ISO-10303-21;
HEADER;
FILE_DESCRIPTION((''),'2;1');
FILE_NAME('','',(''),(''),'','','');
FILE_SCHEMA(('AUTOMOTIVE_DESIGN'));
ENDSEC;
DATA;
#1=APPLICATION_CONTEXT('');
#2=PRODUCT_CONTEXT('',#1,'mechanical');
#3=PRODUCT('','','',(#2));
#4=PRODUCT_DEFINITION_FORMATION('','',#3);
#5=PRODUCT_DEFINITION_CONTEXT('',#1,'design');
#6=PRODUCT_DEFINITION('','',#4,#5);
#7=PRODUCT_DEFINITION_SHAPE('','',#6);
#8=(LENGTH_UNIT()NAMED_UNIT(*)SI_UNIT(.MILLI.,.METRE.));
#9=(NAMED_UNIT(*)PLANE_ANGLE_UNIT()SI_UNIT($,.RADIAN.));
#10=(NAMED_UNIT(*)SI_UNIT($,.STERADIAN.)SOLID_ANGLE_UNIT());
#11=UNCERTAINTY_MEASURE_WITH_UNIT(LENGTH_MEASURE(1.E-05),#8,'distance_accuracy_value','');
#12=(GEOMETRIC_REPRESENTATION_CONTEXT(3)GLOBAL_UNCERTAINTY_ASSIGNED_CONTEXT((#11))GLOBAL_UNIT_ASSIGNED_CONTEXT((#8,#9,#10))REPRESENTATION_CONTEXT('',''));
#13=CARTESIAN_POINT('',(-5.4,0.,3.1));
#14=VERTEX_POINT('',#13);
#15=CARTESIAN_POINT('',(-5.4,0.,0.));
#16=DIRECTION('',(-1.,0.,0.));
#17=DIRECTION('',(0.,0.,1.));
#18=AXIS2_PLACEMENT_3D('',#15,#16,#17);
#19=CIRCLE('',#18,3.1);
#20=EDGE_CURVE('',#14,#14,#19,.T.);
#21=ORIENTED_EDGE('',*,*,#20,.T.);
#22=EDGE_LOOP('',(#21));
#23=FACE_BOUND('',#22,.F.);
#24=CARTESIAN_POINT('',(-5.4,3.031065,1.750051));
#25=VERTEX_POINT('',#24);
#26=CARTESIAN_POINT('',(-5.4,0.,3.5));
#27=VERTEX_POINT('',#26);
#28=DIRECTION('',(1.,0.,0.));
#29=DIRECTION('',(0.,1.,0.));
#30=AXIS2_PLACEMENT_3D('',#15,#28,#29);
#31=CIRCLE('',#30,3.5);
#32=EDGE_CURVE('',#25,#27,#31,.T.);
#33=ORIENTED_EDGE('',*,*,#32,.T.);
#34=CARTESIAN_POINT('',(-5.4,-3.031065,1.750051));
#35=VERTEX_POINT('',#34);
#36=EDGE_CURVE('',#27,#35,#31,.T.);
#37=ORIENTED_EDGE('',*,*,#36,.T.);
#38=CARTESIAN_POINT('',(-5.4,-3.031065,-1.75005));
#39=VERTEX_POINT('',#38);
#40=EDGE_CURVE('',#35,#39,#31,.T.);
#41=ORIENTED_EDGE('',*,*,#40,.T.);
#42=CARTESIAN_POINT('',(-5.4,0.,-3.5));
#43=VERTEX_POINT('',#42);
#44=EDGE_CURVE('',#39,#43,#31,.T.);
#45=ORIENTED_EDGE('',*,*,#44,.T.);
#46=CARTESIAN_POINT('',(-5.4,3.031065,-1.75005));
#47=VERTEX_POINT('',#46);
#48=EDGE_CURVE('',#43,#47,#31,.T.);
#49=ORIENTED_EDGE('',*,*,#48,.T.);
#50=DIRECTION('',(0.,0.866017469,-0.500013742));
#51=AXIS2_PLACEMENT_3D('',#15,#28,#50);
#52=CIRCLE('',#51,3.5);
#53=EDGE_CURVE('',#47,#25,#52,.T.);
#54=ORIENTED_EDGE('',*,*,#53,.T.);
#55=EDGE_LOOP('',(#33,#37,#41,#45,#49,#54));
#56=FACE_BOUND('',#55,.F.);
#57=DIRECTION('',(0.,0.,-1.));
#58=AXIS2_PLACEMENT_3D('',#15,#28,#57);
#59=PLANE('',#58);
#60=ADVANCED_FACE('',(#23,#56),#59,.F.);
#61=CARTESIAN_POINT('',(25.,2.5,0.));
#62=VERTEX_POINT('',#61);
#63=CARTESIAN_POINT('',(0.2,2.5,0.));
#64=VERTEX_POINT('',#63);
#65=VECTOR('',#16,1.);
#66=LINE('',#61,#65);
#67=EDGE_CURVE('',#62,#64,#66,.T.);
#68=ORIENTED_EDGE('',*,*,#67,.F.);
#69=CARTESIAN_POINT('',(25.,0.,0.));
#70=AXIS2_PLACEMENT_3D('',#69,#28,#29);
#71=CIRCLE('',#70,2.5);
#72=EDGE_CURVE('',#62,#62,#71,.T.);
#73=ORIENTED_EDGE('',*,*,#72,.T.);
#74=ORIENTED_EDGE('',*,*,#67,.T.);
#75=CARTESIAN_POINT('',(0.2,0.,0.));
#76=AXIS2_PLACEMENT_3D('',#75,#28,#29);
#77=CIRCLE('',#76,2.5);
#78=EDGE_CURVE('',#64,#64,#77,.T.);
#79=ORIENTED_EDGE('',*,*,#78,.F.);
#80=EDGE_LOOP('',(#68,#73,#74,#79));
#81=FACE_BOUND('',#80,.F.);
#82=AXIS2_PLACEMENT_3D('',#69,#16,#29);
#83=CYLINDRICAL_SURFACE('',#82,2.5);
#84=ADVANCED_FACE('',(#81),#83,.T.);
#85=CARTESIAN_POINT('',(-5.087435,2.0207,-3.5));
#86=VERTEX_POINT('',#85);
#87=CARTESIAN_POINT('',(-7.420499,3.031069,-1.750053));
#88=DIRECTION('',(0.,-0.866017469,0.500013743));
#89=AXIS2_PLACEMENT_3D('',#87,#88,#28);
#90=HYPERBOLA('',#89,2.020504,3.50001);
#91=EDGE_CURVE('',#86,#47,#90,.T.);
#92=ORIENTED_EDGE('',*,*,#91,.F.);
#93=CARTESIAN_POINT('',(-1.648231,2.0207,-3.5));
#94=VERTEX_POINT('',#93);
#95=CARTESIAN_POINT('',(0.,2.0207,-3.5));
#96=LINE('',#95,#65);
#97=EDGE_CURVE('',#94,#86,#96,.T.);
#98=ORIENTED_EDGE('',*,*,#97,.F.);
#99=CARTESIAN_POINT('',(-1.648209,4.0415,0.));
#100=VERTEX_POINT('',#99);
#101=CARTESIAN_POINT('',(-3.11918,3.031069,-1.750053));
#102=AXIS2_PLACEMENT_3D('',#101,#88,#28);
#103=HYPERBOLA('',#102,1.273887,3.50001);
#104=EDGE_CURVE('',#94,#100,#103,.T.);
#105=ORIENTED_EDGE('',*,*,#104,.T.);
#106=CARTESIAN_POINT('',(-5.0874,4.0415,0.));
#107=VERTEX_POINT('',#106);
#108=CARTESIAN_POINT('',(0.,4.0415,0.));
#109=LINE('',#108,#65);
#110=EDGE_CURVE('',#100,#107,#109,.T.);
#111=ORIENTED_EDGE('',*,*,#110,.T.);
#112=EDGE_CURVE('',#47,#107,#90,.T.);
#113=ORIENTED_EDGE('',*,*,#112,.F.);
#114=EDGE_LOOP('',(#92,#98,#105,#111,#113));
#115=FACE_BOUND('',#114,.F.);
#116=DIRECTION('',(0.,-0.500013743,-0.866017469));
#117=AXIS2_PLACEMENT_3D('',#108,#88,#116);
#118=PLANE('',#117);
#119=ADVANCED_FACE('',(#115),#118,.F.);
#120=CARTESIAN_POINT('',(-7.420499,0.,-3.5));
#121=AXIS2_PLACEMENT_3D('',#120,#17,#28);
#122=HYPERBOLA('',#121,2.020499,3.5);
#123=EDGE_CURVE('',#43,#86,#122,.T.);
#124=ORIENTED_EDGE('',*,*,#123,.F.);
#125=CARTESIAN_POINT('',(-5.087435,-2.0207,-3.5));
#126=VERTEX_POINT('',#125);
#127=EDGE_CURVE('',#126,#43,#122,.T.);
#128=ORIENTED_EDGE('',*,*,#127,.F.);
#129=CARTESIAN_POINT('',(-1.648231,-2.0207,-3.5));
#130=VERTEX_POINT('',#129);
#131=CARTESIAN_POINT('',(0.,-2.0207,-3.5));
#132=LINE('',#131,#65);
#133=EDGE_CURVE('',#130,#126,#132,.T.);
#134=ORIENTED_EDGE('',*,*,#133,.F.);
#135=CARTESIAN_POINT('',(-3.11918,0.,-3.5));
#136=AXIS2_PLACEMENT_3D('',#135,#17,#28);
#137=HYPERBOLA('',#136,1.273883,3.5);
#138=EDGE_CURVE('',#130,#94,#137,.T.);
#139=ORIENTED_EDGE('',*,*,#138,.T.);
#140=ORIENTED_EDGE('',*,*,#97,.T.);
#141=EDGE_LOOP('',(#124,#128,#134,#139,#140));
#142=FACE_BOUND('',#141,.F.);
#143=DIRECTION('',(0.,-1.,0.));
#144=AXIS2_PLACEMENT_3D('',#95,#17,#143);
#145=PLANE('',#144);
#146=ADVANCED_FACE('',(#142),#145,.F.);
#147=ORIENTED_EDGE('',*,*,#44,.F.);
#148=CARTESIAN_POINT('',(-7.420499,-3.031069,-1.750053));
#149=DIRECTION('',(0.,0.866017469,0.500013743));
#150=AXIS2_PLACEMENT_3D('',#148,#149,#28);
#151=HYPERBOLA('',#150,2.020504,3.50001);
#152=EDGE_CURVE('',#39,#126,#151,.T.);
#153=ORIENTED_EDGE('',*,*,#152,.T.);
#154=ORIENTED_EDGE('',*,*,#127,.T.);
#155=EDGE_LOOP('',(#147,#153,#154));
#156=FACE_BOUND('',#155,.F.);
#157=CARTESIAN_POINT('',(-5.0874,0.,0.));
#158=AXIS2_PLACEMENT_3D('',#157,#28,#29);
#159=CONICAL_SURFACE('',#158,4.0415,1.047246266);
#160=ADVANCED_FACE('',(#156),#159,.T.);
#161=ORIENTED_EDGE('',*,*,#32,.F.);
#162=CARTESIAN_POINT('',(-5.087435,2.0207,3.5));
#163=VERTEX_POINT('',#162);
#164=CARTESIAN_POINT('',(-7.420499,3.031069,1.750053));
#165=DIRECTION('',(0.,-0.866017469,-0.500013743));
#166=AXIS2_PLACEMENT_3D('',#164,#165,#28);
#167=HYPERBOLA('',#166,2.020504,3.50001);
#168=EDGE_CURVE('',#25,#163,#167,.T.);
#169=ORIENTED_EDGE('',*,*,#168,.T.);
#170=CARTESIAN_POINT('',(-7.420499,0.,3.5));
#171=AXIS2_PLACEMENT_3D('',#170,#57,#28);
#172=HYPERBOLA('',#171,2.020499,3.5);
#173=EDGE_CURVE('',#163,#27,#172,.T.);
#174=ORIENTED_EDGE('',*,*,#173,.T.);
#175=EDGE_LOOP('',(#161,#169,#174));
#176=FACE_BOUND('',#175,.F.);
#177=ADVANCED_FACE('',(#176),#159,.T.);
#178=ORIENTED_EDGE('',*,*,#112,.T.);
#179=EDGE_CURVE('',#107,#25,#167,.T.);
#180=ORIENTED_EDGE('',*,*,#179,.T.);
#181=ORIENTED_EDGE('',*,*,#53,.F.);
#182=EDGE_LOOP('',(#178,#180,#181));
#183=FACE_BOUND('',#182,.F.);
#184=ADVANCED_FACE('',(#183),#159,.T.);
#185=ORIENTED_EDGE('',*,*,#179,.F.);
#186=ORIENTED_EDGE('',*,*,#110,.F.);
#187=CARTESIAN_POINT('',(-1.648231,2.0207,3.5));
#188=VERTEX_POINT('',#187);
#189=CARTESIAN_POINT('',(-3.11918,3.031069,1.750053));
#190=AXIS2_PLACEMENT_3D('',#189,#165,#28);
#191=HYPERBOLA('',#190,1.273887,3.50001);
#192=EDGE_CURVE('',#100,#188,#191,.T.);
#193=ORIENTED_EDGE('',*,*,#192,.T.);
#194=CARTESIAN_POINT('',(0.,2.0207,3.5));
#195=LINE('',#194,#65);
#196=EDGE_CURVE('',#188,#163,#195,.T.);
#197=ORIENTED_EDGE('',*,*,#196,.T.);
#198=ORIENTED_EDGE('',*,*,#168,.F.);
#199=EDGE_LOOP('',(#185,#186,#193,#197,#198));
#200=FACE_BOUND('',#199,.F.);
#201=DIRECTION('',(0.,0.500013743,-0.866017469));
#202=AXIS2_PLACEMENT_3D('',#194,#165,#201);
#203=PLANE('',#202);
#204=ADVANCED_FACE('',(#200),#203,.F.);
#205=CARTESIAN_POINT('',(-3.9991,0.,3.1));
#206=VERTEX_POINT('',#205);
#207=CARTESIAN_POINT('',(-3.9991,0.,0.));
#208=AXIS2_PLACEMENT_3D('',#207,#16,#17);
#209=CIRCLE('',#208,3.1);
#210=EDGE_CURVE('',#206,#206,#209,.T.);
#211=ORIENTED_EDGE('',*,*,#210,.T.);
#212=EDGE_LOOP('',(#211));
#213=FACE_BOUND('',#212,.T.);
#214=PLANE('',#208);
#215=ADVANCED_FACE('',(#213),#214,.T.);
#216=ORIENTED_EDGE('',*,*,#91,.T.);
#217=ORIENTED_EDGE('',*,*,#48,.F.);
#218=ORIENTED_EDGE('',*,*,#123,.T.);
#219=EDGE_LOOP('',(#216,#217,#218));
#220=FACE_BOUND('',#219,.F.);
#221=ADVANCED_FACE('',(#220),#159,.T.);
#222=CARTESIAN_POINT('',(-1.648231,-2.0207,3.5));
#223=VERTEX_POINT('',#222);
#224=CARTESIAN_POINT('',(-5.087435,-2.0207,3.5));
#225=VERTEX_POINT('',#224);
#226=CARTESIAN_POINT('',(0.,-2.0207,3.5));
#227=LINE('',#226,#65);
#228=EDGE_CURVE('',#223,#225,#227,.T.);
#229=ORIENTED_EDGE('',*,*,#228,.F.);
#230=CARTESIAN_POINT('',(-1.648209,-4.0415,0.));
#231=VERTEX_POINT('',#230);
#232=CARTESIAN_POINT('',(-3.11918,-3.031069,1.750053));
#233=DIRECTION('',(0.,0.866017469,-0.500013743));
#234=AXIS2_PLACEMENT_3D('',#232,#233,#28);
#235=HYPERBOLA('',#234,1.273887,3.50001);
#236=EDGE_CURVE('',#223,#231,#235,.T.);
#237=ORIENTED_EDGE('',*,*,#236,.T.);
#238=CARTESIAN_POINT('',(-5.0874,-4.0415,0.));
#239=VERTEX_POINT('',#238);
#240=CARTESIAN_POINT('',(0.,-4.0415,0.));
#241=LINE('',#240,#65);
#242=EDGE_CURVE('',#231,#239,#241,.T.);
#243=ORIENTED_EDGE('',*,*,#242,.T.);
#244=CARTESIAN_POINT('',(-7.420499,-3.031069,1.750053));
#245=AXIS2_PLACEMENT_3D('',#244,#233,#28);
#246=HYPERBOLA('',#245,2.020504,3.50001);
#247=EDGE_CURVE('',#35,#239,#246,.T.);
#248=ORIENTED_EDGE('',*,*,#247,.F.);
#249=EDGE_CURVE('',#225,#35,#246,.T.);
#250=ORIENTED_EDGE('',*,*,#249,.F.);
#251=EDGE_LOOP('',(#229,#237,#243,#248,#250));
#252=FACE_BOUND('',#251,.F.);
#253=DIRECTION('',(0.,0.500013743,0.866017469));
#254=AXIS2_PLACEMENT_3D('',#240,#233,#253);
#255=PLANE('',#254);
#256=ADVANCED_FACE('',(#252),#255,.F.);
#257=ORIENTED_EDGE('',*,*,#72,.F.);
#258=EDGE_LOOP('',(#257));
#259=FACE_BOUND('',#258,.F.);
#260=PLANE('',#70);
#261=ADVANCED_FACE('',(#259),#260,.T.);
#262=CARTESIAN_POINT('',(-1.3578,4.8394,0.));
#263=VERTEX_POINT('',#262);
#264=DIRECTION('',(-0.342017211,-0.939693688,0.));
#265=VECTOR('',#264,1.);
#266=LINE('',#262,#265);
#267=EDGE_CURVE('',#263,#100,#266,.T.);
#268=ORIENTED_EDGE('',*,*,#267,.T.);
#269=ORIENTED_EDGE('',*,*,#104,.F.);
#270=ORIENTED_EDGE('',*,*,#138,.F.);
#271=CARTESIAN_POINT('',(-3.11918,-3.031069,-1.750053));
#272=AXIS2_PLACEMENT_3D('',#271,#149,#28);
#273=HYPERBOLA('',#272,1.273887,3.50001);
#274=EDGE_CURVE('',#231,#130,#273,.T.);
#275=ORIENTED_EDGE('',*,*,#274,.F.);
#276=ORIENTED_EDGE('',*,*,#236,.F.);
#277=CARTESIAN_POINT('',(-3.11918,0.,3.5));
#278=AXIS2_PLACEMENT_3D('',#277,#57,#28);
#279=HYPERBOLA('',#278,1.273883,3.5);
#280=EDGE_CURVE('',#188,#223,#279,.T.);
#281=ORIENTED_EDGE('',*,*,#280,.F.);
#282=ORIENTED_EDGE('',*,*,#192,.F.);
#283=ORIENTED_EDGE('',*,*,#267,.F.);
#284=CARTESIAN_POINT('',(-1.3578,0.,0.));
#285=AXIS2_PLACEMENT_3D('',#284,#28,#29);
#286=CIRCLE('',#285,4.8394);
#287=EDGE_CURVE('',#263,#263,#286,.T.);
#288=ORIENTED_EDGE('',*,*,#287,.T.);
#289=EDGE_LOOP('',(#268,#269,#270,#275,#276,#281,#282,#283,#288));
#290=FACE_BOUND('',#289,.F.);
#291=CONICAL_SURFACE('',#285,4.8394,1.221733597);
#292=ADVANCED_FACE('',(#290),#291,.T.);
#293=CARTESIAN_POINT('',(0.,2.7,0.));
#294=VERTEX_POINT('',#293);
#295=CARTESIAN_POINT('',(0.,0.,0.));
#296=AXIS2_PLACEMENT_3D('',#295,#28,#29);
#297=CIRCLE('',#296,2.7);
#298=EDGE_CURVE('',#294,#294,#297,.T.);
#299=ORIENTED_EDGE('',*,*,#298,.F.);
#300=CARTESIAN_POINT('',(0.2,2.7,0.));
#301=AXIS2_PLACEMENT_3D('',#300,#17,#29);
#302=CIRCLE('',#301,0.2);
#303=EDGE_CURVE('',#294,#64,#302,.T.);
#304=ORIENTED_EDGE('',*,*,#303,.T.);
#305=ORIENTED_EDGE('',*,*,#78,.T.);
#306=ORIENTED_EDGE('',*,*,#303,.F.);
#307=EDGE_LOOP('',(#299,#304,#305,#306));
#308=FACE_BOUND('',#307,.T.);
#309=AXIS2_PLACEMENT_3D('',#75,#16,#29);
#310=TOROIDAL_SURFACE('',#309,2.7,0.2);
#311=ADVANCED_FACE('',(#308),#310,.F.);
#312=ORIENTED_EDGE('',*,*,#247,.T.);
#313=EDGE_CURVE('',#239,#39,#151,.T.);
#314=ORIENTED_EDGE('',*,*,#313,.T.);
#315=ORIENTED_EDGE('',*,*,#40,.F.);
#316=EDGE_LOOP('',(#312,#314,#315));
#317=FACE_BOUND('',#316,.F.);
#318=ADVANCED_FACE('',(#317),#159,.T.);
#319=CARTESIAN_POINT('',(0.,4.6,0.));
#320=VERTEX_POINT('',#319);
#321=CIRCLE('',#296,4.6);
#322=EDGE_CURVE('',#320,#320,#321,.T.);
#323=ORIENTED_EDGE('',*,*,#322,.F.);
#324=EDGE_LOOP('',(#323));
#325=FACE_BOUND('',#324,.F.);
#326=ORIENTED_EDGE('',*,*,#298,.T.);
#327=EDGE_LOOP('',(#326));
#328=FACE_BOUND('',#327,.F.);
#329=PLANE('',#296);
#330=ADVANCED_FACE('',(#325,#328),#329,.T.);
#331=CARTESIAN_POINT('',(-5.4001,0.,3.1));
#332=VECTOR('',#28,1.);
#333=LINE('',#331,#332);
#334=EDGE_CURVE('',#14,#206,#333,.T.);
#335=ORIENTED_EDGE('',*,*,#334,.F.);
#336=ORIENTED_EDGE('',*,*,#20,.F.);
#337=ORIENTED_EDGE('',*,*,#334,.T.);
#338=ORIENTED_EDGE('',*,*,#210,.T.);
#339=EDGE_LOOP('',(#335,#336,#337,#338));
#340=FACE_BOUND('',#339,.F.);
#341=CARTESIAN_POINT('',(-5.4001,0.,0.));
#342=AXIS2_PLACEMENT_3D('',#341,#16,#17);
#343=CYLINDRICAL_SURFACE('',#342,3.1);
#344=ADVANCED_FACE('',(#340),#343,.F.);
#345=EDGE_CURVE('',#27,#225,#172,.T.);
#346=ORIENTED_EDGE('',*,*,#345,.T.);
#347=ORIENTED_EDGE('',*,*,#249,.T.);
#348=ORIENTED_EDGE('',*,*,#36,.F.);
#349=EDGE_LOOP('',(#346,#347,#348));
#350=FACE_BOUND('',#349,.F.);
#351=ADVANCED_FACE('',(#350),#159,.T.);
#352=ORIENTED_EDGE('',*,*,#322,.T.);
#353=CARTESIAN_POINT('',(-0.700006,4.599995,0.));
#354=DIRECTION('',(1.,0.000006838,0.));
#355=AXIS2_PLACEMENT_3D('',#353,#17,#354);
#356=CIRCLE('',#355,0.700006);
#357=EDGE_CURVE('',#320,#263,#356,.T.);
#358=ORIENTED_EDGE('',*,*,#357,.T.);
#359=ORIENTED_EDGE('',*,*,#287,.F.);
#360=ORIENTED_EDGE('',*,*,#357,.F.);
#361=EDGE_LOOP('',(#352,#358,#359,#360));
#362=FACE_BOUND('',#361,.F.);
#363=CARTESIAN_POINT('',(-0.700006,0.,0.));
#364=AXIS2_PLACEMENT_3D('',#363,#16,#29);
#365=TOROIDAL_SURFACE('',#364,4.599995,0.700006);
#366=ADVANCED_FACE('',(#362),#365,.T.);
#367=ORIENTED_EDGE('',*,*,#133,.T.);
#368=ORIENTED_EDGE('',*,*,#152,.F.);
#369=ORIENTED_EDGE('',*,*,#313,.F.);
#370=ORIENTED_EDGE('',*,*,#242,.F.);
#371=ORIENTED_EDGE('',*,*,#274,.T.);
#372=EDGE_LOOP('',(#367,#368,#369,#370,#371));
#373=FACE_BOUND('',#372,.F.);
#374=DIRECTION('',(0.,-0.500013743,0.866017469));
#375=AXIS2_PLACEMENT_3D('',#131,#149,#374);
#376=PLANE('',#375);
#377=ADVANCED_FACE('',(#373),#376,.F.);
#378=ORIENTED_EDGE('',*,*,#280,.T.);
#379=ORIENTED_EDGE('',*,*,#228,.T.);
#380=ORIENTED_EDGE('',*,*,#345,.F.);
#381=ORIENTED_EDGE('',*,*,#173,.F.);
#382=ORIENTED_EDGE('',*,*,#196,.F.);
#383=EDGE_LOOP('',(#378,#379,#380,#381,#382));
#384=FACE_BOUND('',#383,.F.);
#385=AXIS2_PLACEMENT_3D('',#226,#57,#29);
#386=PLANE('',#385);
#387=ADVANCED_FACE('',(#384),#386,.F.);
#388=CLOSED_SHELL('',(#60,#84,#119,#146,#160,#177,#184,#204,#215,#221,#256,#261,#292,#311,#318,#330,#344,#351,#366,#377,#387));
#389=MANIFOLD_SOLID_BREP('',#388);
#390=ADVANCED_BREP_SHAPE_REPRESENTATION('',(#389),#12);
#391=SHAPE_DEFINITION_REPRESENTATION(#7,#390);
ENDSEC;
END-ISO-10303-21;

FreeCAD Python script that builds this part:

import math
import FreeCAD as App
import Part
import Sketcher

V = App.Vector
Q = App.Units.Quantity


def edges_at(feature, points):
    """Names of the edges that pass closest to the given points."""
    edges = feature.Shape.Edges
    near = lambda p: min(range(len(edges)), key=lambda i: edges[i].distToShape(Part.Vertex(*p))[0])
    return sorted({f"Edge{near(p) + 1}" for p in points})


def add_polygon(sketch, points):
    """Adds a closed chain of lines whose ends are joined by coincident constraints."""
    first, n = sketch.GeometryCount, len(points)
    for a, b in zip(points, points[1:] + points[:1]):
        sketch.addGeometry(Part.LineSegment(App.Vector(*a, 0), App.Vector(*b, 0)), False)
    for i in range(n):
        sketch.addConstraint(Sketcher.Constraint("Coincident", first + i, 2, first + (i + 1) % n, 1))

doc = App.newDocument("Part")
body = doc.addObject("PartDesign::Body", "Body")

# Sketch on XY plane
sketch1 = doc.addObject("Sketcher::SketchObject", "Sketch")
body.addObject(sketch1)
sketch1.AttachmentSupport = (doc.XY_Plane, [""])
sketch1.MapMode = "FlatFace"
sketch1.addGeometry([
    Part.ArcOfCircle(Part.Circle(V(-0.7, 4.6, 0), V(0, 0, 1), 0.7), math.radians(0), math.radians(160.001509)),  # 0
    Part.LineSegment(V(-1.3578, 4.8394, 0), V(-2.7, 1.1517, 0)),  # 1
    Part.LineSegment(V(-2.7, 1.1517, 0), V(-2.7, 0, 0)),  # 2
    Part.LineSegment(V(-2.7, 0, 0), V(25, 0, 0)),  # 3
    Part.LineSegment(V(25, 0, 0), V(25, 2.5, 0)),  # 4
    Part.LineSegment(V(25, 2.5, 0), V(0, 2.5, 0)),  # 5
    Part.LineSegment(V(0, 2.5, 0), V(0, 4.6, 0)),  # 6
], False)
sketch1.addConstraint([
    Sketcher.Constraint("Tangent", 0, 2, 1, 1),
    Sketcher.Constraint("Coincident", 1, 2, 2, 1),
    Sketcher.Constraint("Coincident", 2, 2, 3, 1),
    Sketcher.Constraint("Coincident", 3, 2, 4, 1),
    Sketcher.Constraint("Coincident", 4, 2, 5, 1),
    Sketcher.Constraint("Coincident", 5, 2, 6, 1),
    Sketcher.Constraint("Tangent", 6, 2, 0, 1),
    Sketcher.Constraint("Vertical", 2),
    Sketcher.Constraint("Horizontal", 3),
    Sketcher.Constraint("Vertical", 4),
    Sketcher.Constraint("Horizontal", 5),
    Sketcher.Constraint("Vertical", 6),
    Sketcher.Constraint("PointOnObject", 2, 2, -1),
    Sketcher.Constraint("PointOnObject", 5, 2, -2),
    Sketcher.Constraint("Radius", 0, Q("0.7 mm")),
    Sketcher.Constraint("DistanceX", 5, 2, 5, 1, Q("25 mm")),
    Sketcher.Constraint("DistanceX", 1, 2, -1, 1, Q("2.7 mm")),
    Sketcher.Constraint("Angle", 1, Q("-109.9998 deg")),
    Sketcher.Constraint("DistanceY", 4, 1, 4, 2, Q("2.5 mm")),
    Sketcher.Constraint("DistanceY", 6, 1, 6, 2, Q("2.1 mm")),
])
revolution = doc.addObject("PartDesign::Revolution", "Revolution")
body.addObject(revolution)
revolution.Profile = sketch1
revolution.ReferenceAxis = (sketch1, ["H_Axis"])
revolution.Angle = 360

# Sketch on YZ plane
sketch2 = doc.addObject("Sketcher::SketchObject", "Sketch001")
body.addObject(sketch2)
sketch2.AttachmentSupport = (doc.YZ_Plane, [""])
sketch2.MapMode = "FlatFace"
add_polygon(sketch2, [(2.0207, -3.5), (4.0415, 0), (2.0207, 3.5), (-2.0207, 3.5), (-4.0415, 0), (-2.0207, -3.5)])  # lines 0-5
sketch2.addConstraint([
    Sketcher.Constraint("Horizontal", 2),
    Sketcher.Constraint("Horizontal", 5),
    Sketcher.Constraint("Symmetric", 0, 2, 3, 2, -1, 1),
    Sketcher.Constraint("Symmetric", 1, 2, 4, 2, -1, 1),
    Sketcher.Constraint("PointOnObject", 0, 2, -1),
    Sketcher.Constraint("Parallel", 0, 3),
    Sketcher.Constraint("Vertical", 2, 2, 4, 2),
    Sketcher.Constraint("DistanceY", 4, 2, 2, 2, Q("7 mm")),
    Sketcher.Constraint("Angle", 0, Q("59.999 deg")),
    Sketcher.Constraint("DistanceX", 2, 2, 2, 1, Q("4.0414 mm")),
])
pad1 = doc.addObject("PartDesign::Pad", "Pad")
body.addObject(pad1)
pad1.Profile = sketch2
pad1.Length = 5.4
pad1.Reversed = True
doc.recompute()

fillet = doc.addObject("PartDesign::Fillet", "Fillet")
body.addObject(fillet)
fillet.Base = (pad1, edges_at(pad1, [(0, -2.5, 0)]))
fillet.Radius = 0.2

# Sketch on YZ plane
sketch3 = doc.addObject("Sketcher::SketchObject", "Sketch002")
body.addObject(sketch3)
sketch3.AttachmentSupport = (doc.YZ_Plane, [""])
sketch3.MapMode = "FlatFace"
sketch3.AttachmentOffset = App.Placement(V(0, 0, -5.4001), App.Rotation())
sketch3.addGeometry(Part.Circle(V(0, 0, 0), V(0, 0, 1), 3.1), False)
sketch3.addConstraint([
    Sketcher.Constraint("Coincident", 0, 3, -1, 1),
    Sketcher.Constraint("Diameter", 0, Q("6.2 mm")),
])
pocket1 = doc.addObject("PartDesign::Pocket", "Pocket")
body.addObject(pocket1)
pocket1.Profile = sketch3
pocket1.Length = 1.401
pocket1.Reversed = True

# Sketch on XY plane
sketch4 = doc.addObject("Sketcher::SketchObject", "Sketch003")
body.addObject(sketch4)
sketch4.AttachmentSupport = (doc.XY_Plane, [""])
sketch4.MapMode = "FlatFace"
add_polygon(sketch4, [(-5.4, 4.0415), (-5.4, 3.5), (-5.0874, 4.0415)])  # lines 0-2
sketch4.addConstraint([
    Sketcher.Constraint("Vertical", 0),
    Sketcher.Constraint("Horizontal", 2),
    Sketcher.Constraint("DistanceX", 0, 2, -1, 1, Q("5.4 mm")),
    Sketcher.Constraint("DistanceY", -1, 1, 0, 2, Q("3.5 mm")),
    Sketcher.Constraint("DistanceX", 2, 2, 2, 1, Q("0.3126 mm")),
    Sketcher.Constraint("DistanceY", 0, 2, 0, 1, Q("0.5415 mm")),
])
groove = doc.addObject("PartDesign::Groove", "Groove")
body.addObject(groove)
groove.Profile = sketch4
groove.ReferenceAxis = (sketch4, ["H_Axis"])
groove.Angle = 360

doc.recompute()
